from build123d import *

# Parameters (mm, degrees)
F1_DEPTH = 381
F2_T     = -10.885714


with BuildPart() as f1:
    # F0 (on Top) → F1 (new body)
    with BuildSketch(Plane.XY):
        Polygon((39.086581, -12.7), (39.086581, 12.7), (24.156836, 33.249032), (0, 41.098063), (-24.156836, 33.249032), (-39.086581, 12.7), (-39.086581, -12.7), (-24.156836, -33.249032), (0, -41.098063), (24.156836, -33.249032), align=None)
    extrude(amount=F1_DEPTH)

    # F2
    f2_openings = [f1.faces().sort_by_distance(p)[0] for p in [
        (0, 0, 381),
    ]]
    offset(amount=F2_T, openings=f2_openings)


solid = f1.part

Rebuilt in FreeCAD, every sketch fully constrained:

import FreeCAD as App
import Part
import Sketcher

V = App.Vector
Q = App.Units.Quantity


def faces_at(feature, points):
    """Names of the faces that lie closest to the given points."""
    faces = feature.Shape.Faces
    near = lambda p: min(range(len(faces)), key=lambda i: faces[i].distToShape(Part.Vertex(*p))[0])
    return sorted({f"Face{near(p) + 1}" for p in points})


def add_polygon(sketch, points):
    """Adds a closed chain of lines whose ends are joined by coincident constraints."""
    first, n = sketch.GeometryCount, len(points)
    for a, b in zip(points, points[1:] + points[:1]):
        sketch.addGeometry(Part.LineSegment(App.Vector(*a, 0), App.Vector(*b, 0)), False)
    for i in range(n):
        sketch.addConstraint(Sketcher.Constraint("Coincident", first + i, 2, first + (i + 1) % n, 1))

doc = App.newDocument("Part")
body = doc.addObject("PartDesign::Body", "Body")

# Sketch on XY plane
sketch1 = doc.addObject("Sketcher::SketchObject", "Sketch")
body.addObject(sketch1)
sketch1.AttachmentSupport = (doc.XY_Plane, [""])
sketch1.MapMode = "FlatFace"
add_polygon(sketch1, [(39.086581, -12.7), (39.086581, 12.7), (24.156836, 33.249032), (0, 41.098063), (-24.156836, 33.249032), (-39.086581, 12.7), (-39.086581, -12.7), (-24.156836, -33.249032), (0, -41.098063), (24.156836, -33.249032)])  # lines 0-9
sketch1.addConstraint(Sketcher.Constraint("Vertical", 0))
sketch1.addConstraint(Sketcher.Constraint("Vertical", 5))
sketch1.addConstraint(Sketcher.Constraint("Symmetric", 0, 2, 5, 2, -1, 1))
sketch1.addConstraint(Sketcher.Constraint("Symmetric", 1, 2, 6, 2, -1, 1))
sketch1.addConstraint(Sketcher.Constraint("Symmetric", 2, 2, 7, 2, -1, 1))
sketch1.addConstraint(Sketcher.Constraint("Symmetric", 3, 2, 8, 2, -1, 1))
sketch1.addConstraint(Sketcher.Constraint("Symmetric", 1, 2, 3, 2, -2))
sketch1.addConstraint(Sketcher.Constraint("PointOnObject", 2, 2, -2))
sketch1.addConstraint(Sketcher.Constraint("Parallel", 4, 9))
sketch1.addConstraint(Sketcher.Constraint("Horizontal", 0, 2, 4, 2))
sketch1.addConstraint(Sketcher.Constraint("Equal", 1, 2))
sketch1.addConstraint(Sketcher.Constraint("DistanceY", 0, 1, 0, 2, Q("1 in")))
sketch1.addConstraint(Sketcher.Constraint("Distance", 1, Q("1 in")))
sketch1.addConstraint(Sketcher.Constraint("Angle", 1, Q("125.999999 deg")))
sketch1.addConstraint(Sketcher.Constraint("Angle", 2, Q("162.000002 deg")))
pad1 = doc.addObject("PartDesign::Pad", "Pad")
body.addObject(pad1)
pad1.Profile = sketch1
pad1.Length = Q("15 in")
doc.recompute()

thickness = doc.addObject("PartDesign::Thickness", "Thickness")
body.addObject(thickness)
thickness.Base = (pad1, faces_at(pad1, [(0, 0, 381)]))
thickness.Value = 10.885714
thickness.Reversed = True
thickness.Join = "Arc"

doc.recompute()
